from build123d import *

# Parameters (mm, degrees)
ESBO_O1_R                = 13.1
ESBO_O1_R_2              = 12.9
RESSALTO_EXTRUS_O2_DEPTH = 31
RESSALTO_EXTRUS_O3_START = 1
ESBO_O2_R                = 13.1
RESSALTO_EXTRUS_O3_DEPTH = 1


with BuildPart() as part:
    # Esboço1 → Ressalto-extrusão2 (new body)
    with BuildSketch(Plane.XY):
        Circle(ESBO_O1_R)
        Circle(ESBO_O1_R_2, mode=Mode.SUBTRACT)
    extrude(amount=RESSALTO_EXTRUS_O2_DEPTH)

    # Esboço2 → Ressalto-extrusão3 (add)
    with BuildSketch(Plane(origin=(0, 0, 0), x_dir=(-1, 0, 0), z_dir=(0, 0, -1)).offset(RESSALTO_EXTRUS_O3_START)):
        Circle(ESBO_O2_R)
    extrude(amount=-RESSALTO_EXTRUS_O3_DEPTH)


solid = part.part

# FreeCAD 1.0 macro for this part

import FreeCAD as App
import Part
import Sketcher
from FreeCAD import Vector
Q = App.Units.Quantity

doc = App.newDocument("Part")
body = doc.addObject("PartDesign::Body", "Body")

# Sketch on XY plane
sketch1 = body.newObject("Sketcher::SketchObject", "Sketch")
sketch1.AttachmentSupport = (doc.getObject("XY_Plane"), [""])
sketch1.MapMode = "FlatFace"
sketch1.addGeometry([
    Part.Circle(Vector(0, 0, 0), Vector(0, 0, 1), 13),
    Part.Circle(Vector(0, 0, 0), Vector(0, 0, 1), 13),
], False)
sketch1.addConstraint([
    Sketcher.Constraint("Coincident", 0, 3, -1, 1),
    Sketcher.Constraint("Coincident", 1, 3, -1, 1),
    Sketcher.Constraint("Diameter", 0, Q("26.2 mm")),
    Sketcher.Constraint("Diameter", 1, Q("25.8 mm")),
])
pad1 = body.newObject("PartDesign::Pad", "Pad")
pad1.Profile = sketch1
pad1.Length = 31

# Sketch on XY plane
sketch2 = body.newObject("Sketcher::SketchObject", "Sketch001")
sketch2.AttachmentSupport = (doc.getObject("XY_Plane"), [""])
sketch2.MapMode = "FlatFace"
sketch2.AttachmentOffset = App.Placement(Vector(0, 0, -1), App.Rotation())
sketch2.addGeometry(Part.Circle(Vector(0, 0, 0), Vector(0, 0, 1), 13), False)
sketch2.addConstraint([
    Sketcher.Constraint("Coincident", 0, 3, -1, 1),
    Sketcher.Constraint("Diameter", 0, Q("26.2 mm")),
])
pad2 = body.newObject("PartDesign::Pad", "Pad001")
pad2.Profile = sketch2
pad2.Length = 1

doc.recompute()
